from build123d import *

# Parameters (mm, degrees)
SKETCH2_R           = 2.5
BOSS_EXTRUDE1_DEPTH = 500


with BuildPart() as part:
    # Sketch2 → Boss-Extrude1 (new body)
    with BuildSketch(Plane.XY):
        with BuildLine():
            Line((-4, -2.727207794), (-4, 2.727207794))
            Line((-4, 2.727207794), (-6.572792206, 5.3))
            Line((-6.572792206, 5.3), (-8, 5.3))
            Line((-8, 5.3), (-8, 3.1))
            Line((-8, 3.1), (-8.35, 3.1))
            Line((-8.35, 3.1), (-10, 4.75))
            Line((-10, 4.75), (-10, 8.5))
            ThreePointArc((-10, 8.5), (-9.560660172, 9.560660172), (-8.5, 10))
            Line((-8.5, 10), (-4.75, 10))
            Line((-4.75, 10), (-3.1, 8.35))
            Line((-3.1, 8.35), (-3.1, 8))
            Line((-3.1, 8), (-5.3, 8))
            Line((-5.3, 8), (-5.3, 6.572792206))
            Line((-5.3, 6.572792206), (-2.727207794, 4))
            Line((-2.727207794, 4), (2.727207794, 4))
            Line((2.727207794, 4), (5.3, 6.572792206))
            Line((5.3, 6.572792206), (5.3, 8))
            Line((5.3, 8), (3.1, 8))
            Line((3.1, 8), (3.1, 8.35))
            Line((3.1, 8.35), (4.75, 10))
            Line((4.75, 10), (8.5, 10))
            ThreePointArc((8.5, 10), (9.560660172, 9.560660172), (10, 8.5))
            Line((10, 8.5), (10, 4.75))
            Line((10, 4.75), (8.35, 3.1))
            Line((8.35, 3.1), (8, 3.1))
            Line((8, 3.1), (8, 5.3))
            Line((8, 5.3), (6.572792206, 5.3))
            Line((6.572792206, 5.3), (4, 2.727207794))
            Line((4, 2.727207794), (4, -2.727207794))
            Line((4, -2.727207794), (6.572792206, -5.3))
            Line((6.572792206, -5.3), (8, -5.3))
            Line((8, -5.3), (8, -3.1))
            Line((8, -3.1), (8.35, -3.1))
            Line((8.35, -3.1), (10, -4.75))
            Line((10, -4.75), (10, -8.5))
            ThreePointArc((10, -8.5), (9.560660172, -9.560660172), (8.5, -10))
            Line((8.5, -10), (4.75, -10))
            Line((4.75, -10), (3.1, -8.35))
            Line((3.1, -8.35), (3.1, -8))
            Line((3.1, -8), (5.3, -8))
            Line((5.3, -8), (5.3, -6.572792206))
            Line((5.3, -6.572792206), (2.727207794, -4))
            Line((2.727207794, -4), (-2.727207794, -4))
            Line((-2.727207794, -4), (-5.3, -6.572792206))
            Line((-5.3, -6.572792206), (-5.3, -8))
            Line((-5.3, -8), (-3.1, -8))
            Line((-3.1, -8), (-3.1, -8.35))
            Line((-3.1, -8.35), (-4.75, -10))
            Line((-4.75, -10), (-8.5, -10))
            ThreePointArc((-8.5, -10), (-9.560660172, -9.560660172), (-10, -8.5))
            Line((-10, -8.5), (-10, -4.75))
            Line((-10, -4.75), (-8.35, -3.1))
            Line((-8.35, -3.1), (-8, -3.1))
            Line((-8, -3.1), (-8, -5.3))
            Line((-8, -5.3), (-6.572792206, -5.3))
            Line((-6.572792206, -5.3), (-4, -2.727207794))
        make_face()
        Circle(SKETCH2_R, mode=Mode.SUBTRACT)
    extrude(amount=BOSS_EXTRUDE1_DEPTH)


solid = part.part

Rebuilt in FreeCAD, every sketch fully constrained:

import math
import FreeCAD as App
import Part
import Sketcher

doc = App.newDocument("Part")
body = doc.addObject("PartDesign::Body", "Body")

sketch1 = doc.addObject("Sketcher::SketchObject", "Sketch")
body.addObject(sketch1)
sketch1.AttachmentSupport = (doc.XY_Plane, [""])
sketch1.MapMode = "FlatFace"
sketch1.addGeometry(Part.LineSegment(App.Vector(-4, 2.73, 0), App.Vector(-4, -2.73, 0)), False)
sketch1.addGeometry(Part.LineSegment(App.Vector(-4, -2.73, 0), App.Vector(-6.57, -5.3, 0)), False)
sketch1.addGeometry(Part.LineSegment(App.Vector(-6.57, -5.3, 0), App.Vector(-8, -5.3, 0)), False)
sketch1.addGeometry(Part.LineSegment(App.Vector(-8, -5.3, 0), App.Vector(-8, -3.1, 0)), False)
sketch1.addGeometry(Part.LineSegment(App.Vector(-8, -3.1, 0), App.Vector(-8.35, -3.1, 0)), False)
sketch1.addGeometry(Part.LineSegment(App.Vector(-8.35, -3.1, 0), App.Vector(-10, -4.75, 0)), False)
sketch1.addGeometry(Part.LineSegment(App.Vector(-10, -4.75, 0), App.Vector(-10, -8.5, 0)), False)
sketch1.addGeometry(Part.ArcOfCircle(Part.Circle(App.Vector(-8.5, -8.5, 0), App.Vector(0, 0, 1), 1.5), math.radians(180), math.radians(270)), False)
sketch1.addGeometry(Part.LineSegment(App.Vector(-8.5, -10, 0), App.Vector(-4.75, -10, 0)), False)
sketch1.addGeometry(Part.LineSegment(App.Vector(-4.75, -10, 0), App.Vector(-3.1, -8.35, 0)), False)
sketch1.addGeometry(Part.LineSegment(App.Vector(-3.1, -8.35, 0), App.Vector(-3.1, -8, 0)), False)
sketch1.addGeometry(Part.LineSegment(App.Vector(-3.1, -8, 0), App.Vector(-5.3, -8, 0)), False)
sketch1.addGeometry(Part.LineSegment(App.Vector(-5.3, -8, 0), App.Vector(-5.3, -6.57, 0)), False)
sketch1.addGeometry(Part.LineSegment(App.Vector(-5.3, -6.57, 0), App.Vector(-2.73, -4, 0)), False)
sketch1.addGeometry(Part.LineSegment(App.Vector(-2.73, -4, 0), App.Vector(2.73, -4, 0)), False)
sketch1.addGeometry(Part.LineSegment(App.Vector(2.73, -4, 0), App.Vector(5.3, -6.57, 0)), False)
sketch1.addGeometry(Part.LineSegment(App.Vector(5.3, -6.57, 0), App.Vector(5.3, -8, 0)), False)
sketch1.addGeometry(Part.LineSegment(App.Vector(5.3, -8, 0), App.Vector(3.1, -8, 0)), False)
sketch1.addGeometry(Part.LineSegment(App.Vector(3.1, -8, 0), App.Vector(3.1, -8.35, 0)), False)
sketch1.addGeometry(Part.LineSegment(App.Vector(3.1, -8.35, 0), App.Vector(4.75, -10, 0)), False)
sketch1.addGeometry(Part.LineSegment(App.Vector(4.75, -10, 0), App.Vector(8.5, -10, 0)), False)
sketch1.addGeometry(Part.ArcOfCircle(Part.Circle(App.Vector(8.5, -8.5, 0), App.Vector(0, 0, 1), 1.5), math.radians(-90), math.radians(0)), False)
sketch1.addGeometry(Part.LineSegment(App.Vector(10, -8.5, 0), App.Vector(10, -4.75, 0)), False)
sketch1.addGeometry(Part.LineSegment(App.Vector(10, -4.75, 0), App.Vector(8.35, -3.1, 0)), False)
sketch1.addGeometry(Part.LineSegment(App.Vector(8.35, -3.1, 0), App.Vector(8, -3.1, 0)), False)
sketch1.addGeometry(Part.LineSegment(App.Vector(8, -3.1, 0), App.Vector(8, -5.3, 0)), False)
sketch1.addGeometry(Part.LineSegment(App.Vector(8, -5.3, 0), App.Vector(6.57, -5.3, 0)), False)
sketch1.addGeometry(Part.LineSegment(App.Vector(6.57, -5.3, 0), App.Vector(4, -2.73, 0)), False)
sketch1.addGeometry(Part.LineSegment(App.Vector(4, -2.73, 0), App.Vector(4, 2.73, 0)), False)
sketch1.addGeometry(Part.LineSegment(App.Vector(4, 2.73, 0), App.Vector(6.57, 5.3, 0)), False)
sketch1.addGeometry(Part.LineSegment(App.Vector(6.57, 5.3, 0), App.Vector(8, 5.3, 0)), False)
sketch1.addGeometry(Part.LineSegment(App.Vector(8, 5.3, 0), App.Vector(8, 3.1, 0)), False)
sketch1.addGeometry(Part.LineSegment(App.Vector(8, 3.1, 0), App.Vector(8.35, 3.1, 0)), False)
sketch1.addGeometry(Part.LineSegment(App.Vector(8.35, 3.1, 0), App.Vector(10, 4.75, 0)), False)
sketch1.addGeometry(Part.LineSegment(App.Vector(10, 4.75, 0), App.Vector(10, 8.5, 0)), False)
sketch1.addGeometry(Part.ArcOfCircle(Part.Circle(App.Vector(8.5, 8.5, 0), App.Vector(0, 0, 1), 1.5), math.radians(0), math.radians(90)), False)
sketch1.addGeometry(Part.LineSegment(App.Vector(8.5, 10, 0), App.Vector(4.75, 10, 0)), False)
sketch1.addGeometry(Part.LineSegment(App.Vector(4.75, 10, 0), App.Vector(3.1, 8.35, 0)), False)
sketch1.addGeometry(Part.LineSegment(App.Vector(3.1, 8.35, 0), App.Vector(3.1, 8, 0)), False)
sketch1.addGeometry(Part.LineSegment(App.Vector(3.1, 8, 0), App.Vector(5.3, 8, 0)), False)
sketch1.addGeometry(Part.LineSegment(App.Vector(5.3, 8, 0), App.Vector(5.3, 6.57, 0)), False)
sketch1.addGeometry(Part.LineSegment(App.Vector(5.3, 6.57, 0), App.Vector(2.73, 4, 0)), False)
sketch1.addGeometry(Part.LineSegment(App.Vector(2.73, 4, 0), App.Vector(-2.73, 4, 0)), False)
sketch1.addGeometry(Part.LineSegment(App.Vector(-2.73, 4, 0), App.Vector(-5.3, 6.57, 0)), False)
sketch1.addGeometry(Part.LineSegment(App.Vector(-5.3, 6.57, 0), App.Vector(-5.3, 8, 0)), False)
sketch1.addGeometry(Part.LineSegment(App.Vector(-5.3, 8, 0), App.Vector(-3.1, 8, 0)), False)
sketch1.addGeometry(Part.LineSegment(App.Vector(-3.1, 8, 0), App.Vector(-3.1, 8.35, 0)), False)
sketch1.addGeometry(Part.LineSegment(App.Vector(-3.1, 8.35, 0), App.Vector(-4.75, 10, 0)), False)
sketch1.addGeometry(Part.LineSegment(App.Vector(-4.75, 10, 0), App.Vector(-8.5, 10, 0)), False)
sketch1.addGeometry(Part.ArcOfCircle(Part.Circle(App.Vector(-8.5, 8.5, 0), App.Vector(0, 0, 1), 1.5), math.radians(90), math.radians(180)), False)
sketch1.addGeometry(Part.LineSegment(App.Vector(-10, 8.5, 0), App.Vector(-10, 4.75, 0)), False)
sketch1.addGeometry(Part.LineSegment(App.Vector(-10, 4.75, 0), App.Vector(-8.35, 3.1, 0)), False)
sketch1.addGeometry(Part.LineSegment(App.Vector(-8.35, 3.1, 0), App.Vector(-8, 3.1, 0)), False)
sketch1.addGeometry(Part.LineSegment(App.Vector(-8, 3.1, 0), App.Vector(-8, 5.3, 0)), False)
sketch1.addGeometry(Part.LineSegment(App.Vector(-8, 5.3, 0), App.Vector(-6.57, 5.3, 0)), False)
sketch1.addGeometry(Part.LineSegment(App.Vector(-6.57, 5.3, 0), App.Vector(-4, 2.73, 0)), False)
sketch1.addGeometry(Part.Circle(App.Vector(0, 0, 0), App.Vector(0, 0, 1), 2.5), False)
sketch1.addConstraint(Sketcher.Constraint("Coincident", 0, 2, 1, 1))
sketch1.addConstraint(Sketcher.Constraint("Coincident", 1, 2, 2, 1))
sketch1.addConstraint(Sketcher.Constraint("Coincident", 2, 2, 3, 1))
sketch1.addConstraint(Sketcher.Constraint("Coincident", 3, 2, 4, 1))
sketch1.addConstraint(Sketcher.Constraint("Coincident", 4, 2, 5, 1))
sketch1.addConstraint(Sketcher.Constraint("Coincident", 5, 2, 6, 1))
sketch1.addConstraint(Sketcher.Constraint("Tangent", 6, 2, 7, 1))
sketch1.addConstraint(Sketcher.Constraint("Tangent", 7, 2, 8, 1))
sketch1.addConstraint(Sketcher.Constraint("Coincident", 8, 2, 9, 1))
sketch1.addConstraint(Sketcher.Constraint("Coincident", 9, 2, 10, 1))
sketch1.addConstraint(Sketcher.Constraint("Coincident", 10, 2, 11, 1))
sketch1.addConstraint(Sketcher.Constraint("Coincident", 11, 2, 12, 1))
sketch1.addConstraint(Sketcher.Constraint("Coincident", 12, 2, 13, 1))
sketch1.addConstraint(Sketcher.Constraint("Coincident", 13, 2, 14, 1))
sketch1.addConstraint(Sketcher.Constraint("Coincident", 14, 2, 15, 1))
sketch1.addConstraint(Sketcher.Constraint("Coincident", 15, 2, 16, 1))
sketch1.addConstraint(Sketcher.Constraint("Coincident", 16, 2, 17, 1))
sketch1.addConstraint(Sketcher.Constraint("Coincident", 17, 2, 18, 1))
sketch1.addConstraint(Sketcher.Constraint("Coincident", 18, 2, 19, 1))
sketch1.addConstraint(Sketcher.Constraint("Coincident", 19, 2, 20, 1))
sketch1.addConstraint(Sketcher.Constraint("Tangent", 20, 2, 21, 1))
sketch1.addConstraint(Sketcher.Constraint("Tangent", 21, 2, 22, 1))
sketch1.addConstraint(Sketcher.Constraint("Coincident", 22, 2, 23, 1))
sketch1.addConstraint(Sketcher.Constraint("Coincident", 23, 2, 24, 1))
sketch1.addConstraint(Sketcher.Constraint("Coincident", 24, 2, 25, 1))
sketch1.addConstraint(Sketcher.Constraint("Coincident", 25, 2, 26, 1))
sketch1.addConstraint(Sketcher.Constraint("Coincident", 26, 2, 27, 1))
sketch1.addConstraint(Sketcher.Constraint("Coincident", 27, 2, 28, 1))
sketch1.addConstraint(Sketcher.Constraint("Coincident", 28, 2, 29, 1))
sketch1.addConstraint(Sketcher.Constraint("Coincident", 29, 2, 30, 1))
sketch1.addConstraint(Sketcher.Constraint("Coincident", 30, 2, 31, 1))
sketch1.addConstraint(Sketcher.Constraint("Coincident", 31, 2, 32, 1))
sketch1.addConstraint(Sketcher.Constraint("Coincident", 32, 2, 33, 1))
sketch1.addConstraint(Sketcher.Constraint("Coincident", 33, 2, 34, 1))
sketch1.addConstraint(Sketcher.Constraint("Tangent", 34, 2, 35, 1))
sketch1.addConstraint(Sketcher.Constraint("Tangent", 35, 2, 36, 1))
sketch1.addConstraint(Sketcher.Constraint("Coincident", 36, 2, 37, 1))
sketch1.addConstraint(Sketcher.Constraint("Coincident", 37, 2, 38, 1))
sketch1.addConstraint(Sketcher.Constraint("Coincident", 38, 2, 39, 1))
sketch1.addConstraint(Sketcher.Constraint("Coincident", 39, 2, 40, 1))
sketch1.addConstraint(Sketcher.Constraint("Coincident", 40, 2, 41, 1))
sketch1.addConstraint(Sketcher.Constraint("Coincident", 41, 2, 42, 1))
sketch1.addConstraint(Sketcher.Constraint("Coincident", 42, 2, 43, 1))
sketch1.addConstraint(Sketcher.Constraint("Coincident", 43, 2, 44, 1))
sketch1.addConstraint(Sketcher.Constraint("Coincident", 44, 2, 45, 1))
sketch1.addConstraint(Sketcher.Constraint("Coincident", 45, 2, 46, 1))
sketch1.addConstraint(Sketcher.Constraint("Coincident", 46, 2, 47, 1))
sketch1.addConstraint(Sketcher.Constraint("Coincident", 47, 2, 48, 1))
sketch1.addConstraint(Sketcher.Constraint("Tangent", 48, 2, 49, 1))
sketch1.addConstraint(Sketcher.Constraint("Tangent", 49, 2, 50, 1))
sketch1.addConstraint(Sketcher.Constraint("Coincident", 50, 2, 51, 1))
sketch1.addConstraint(Sketcher.Constraint("Coincident", 51, 2, 52, 1))
sketch1.addConstraint(Sketcher.Constraint("Coincident", 52, 2, 53, 1))
sketch1.addConstraint(Sketcher.Constraint("Coincident", 53, 2, 54, 1))
sketch1.addConstraint(Sketcher.Constraint("Coincident", 54, 2, 55, 1))
sketch1.addConstraint(Sketcher.Constraint("Coincident", 55, 2, 0, 1))
sketch1.addConstraint(Sketcher.Constraint("Vertical", 0))
sketch1.addConstraint(Sketcher.Constraint("Horizontal", 2))
sketch1.addConstraint(Sketcher.Constraint("Vertical", 3))
sketch1.addConstraint(Sketcher.Constraint("Horizontal", 4))
sketch1.addConstraint(Sketcher.Constraint("Vertical", 6))
sketch1.addConstraint(Sketcher.Constraint("Horizontal", 8))
sketch1.addConstraint(Sketcher.Constraint("Vertical", 10))
sketch1.addConstraint(Sketcher.Constraint("Horizontal", 11))
sketch1.addConstraint(Sketcher.Constraint("Vertical", 12))
sketch1.addConstraint(Sketcher.Constraint("Horizontal", 14))
sketch1.addConstraint(Sketcher.Constraint("Vertical", 16))
sketch1.addConstraint(Sketcher.Constraint("Horizontal", 17))
sketch1.addConstraint(Sketcher.Constraint("Vertical", 18))
sketch1.addConstraint(Sketcher.Constraint("Horizontal", 20))
sketch1.addConstraint(Sketcher.Constraint("Vertical", 22))
sketch1.addConstraint(Sketcher.Constraint("Horizontal", 24))
sketch1.addConstraint(Sketcher.Constraint("Vertical", 25))
sketch1.addConstraint(Sketcher.Constraint("Horizontal", 26))
sketch1.addConstraint(Sketcher.Constraint("Vertical", 28))
sketch1.addConstraint(Sketcher.Constraint("Horizontal", 30))
sketch1.addConstraint(Sketcher.Constraint("Vertical", 31))
sketch1.addConstraint(Sketcher.Constraint("Horizontal", 32))
sketch1.addConstraint(Sketcher.Constraint("Vertical", 34))
sketch1.addConstraint(Sketcher.Constraint("Horizontal", 36))
sketch1.addConstraint(Sketcher.Constraint("Vertical", 38))
sketch1.addConstraint(Sketcher.Constraint("Horizontal", 39))
sketch1.addConstraint(Sketcher.Constraint("Vertical", 40))
sketch1.addConstraint(Sketcher.Constraint("Horizontal", 42))
sketch1.addConstraint(Sketcher.Constraint("Vertical", 44))
sketch1.addConstraint(Sketcher.Constraint("Horizontal", 45))
sketch1.addConstraint(Sketcher.Constraint("Vertical", 46))
sketch1.addConstraint(Sketcher.Constraint("Horizontal", 48))
sketch1.addConstraint(Sketcher.Constraint("Vertical", 50))
sketch1.addConstraint(Sketcher.Constraint("Horizontal", 52))
sketch1.addConstraint(Sketcher.Constraint("Vertical", 53))
sketch1.addConstraint(Sketcher.Constraint("Horizontal", 54))
sketch1.addConstraint(Sketcher.Constraint("Coincident", 56, 3, -1, 1))
sketch1.addConstraint(Sketcher.Constraint("Equal", 7, 21))
sketch1.addConstraint(Sketcher.Constraint("Equal", 21, 35))
sketch1.addConstraint(Sketcher.Constraint("Equal", 35, 49))
sketch1.addConstraint(Sketcher.Constraint("Symmetric", 7, 3, 35, 3, -1, 1))
sketch1.addConstraint(Sketcher.Constraint("Symmetric", 21, 3, 49, 3, -1, 1))
sketch1.addConstraint(Sketcher.Constraint("Symmetric", 0, 2, 28, 2, -1, 1))
sketch1.addConstraint(Sketcher.Constraint("Symmetric", 1, 2, 29, 2, -1, 1))
sketch1.addConstraint(Sketcher.Constraint("Symmetric", 3, 2, 31, 2, -1, 1))
sketch1.addConstraint(Sketcher.Constraint("Symmetric", 9, 2, 37, 2, -1, 1))
sketch1.addConstraint(Sketcher.Constraint("Symmetric", 11, 2, 39, 2, -1, 1))
sketch1.addConstraint(Sketcher.Constraint("Symmetric", 13, 2, 41, 2, -1, 1))
sketch1.addConstraint(Sketcher.Constraint("Symmetric", 15, 2, 43, 2, -1, 1))
sketch1.addConstraint(Sketcher.Constraint("Symmetric", 17, 2, 45, 2, -1, 1))
sketch1.addConstraint(Sketcher.Constraint("Symmetric", 23, 2, 51, 2, -1, 1))
sketch1.addConstraint(Sketcher.Constraint("Symmetric", 25, 2, 53, 2, -1, 1))
sketch1.addConstraint(Sketcher.Constraint("Symmetric", 7, 3, 21, 3, -2))
sketch1.addConstraint(Sketcher.Constraint("Symmetric", 12, 2, 15, 2, -2))
sketch1.addConstraint(Sketcher.Constraint("Symmetric", 10, 2, 17, 2, -2))
sketch1.addConstraint(Sketcher.Constraint("Symmetric", 4, 2, 23, 2, -2))
sketch1.addConstraint(Sketcher.Constraint("Symmetric", 2, 2, 25, 2, -2))
sketch1.addConstraint(Sketcher.Constraint("Parallel", 1, 5))
sketch1.addConstraint(Sketcher.Constraint("Parallel", 5, 9))
sketch1.addConstraint(Sketcher.Constraint("Parallel", 9, 13))
sketch1.addConstraint(Sketcher.Constraint("Perpendicular", 13, 15))
sketch1.addConstraint(Sketcher.Constraint("Parallel", 15, 19))
sketch1.addConstraint(Sketcher.Constraint("Parallel", 19, 23))
sketch1.addConstraint(Sketcher.Constraint("Parallel", 23, 27))
sketch1.addConstraint(Sketcher.Constraint("Parallel", 29, 33))
sketch1.addConstraint(Sketcher.Constraint("Parallel", 33, 37))
sketch1.addConstraint(Sketcher.Constraint("Parallel", 37, 41))
sketch1.addConstraint(Sketcher.Constraint("Perpendicular", 41, 43))
sketch1.addConstraint(Sketcher.Constraint("Parallel", 43, 47))
sketch1.addConstraint(Sketcher.Constraint("Parallel", 47, 51))
sketch1.addConstraint(Sketcher.Constraint("Parallel", 51, 55))
sketch1.addConstraint(Sketcher.Constraint("Horizontal", 9, 2, 18, 2))
sketch1.addConstraint(Sketcher.Constraint("Horizontal", 5, 2, 22, 2))
sketch1.addConstraint(Sketcher.Constraint("Horizontal", 0, 2, 27, 2))
sketch1.addConstraint(Sketcher.Constraint("Horizontal", 37, 2, 46, 2))
sketch1.addConstraint(Sketcher.Constraint("Horizontal", 33, 2, 50, 2))
sketch1.addConstraint(Sketcher.Constraint("Horizontal", 28, 2, 55, 2))
sketch1.addConstraint(Sketcher.Constraint("Equal", 42, 0))
sketch1.addConstraint(Sketcher.Constraint("Equal", 45, 3))
sketch1.addConstraint(Sketcher.Constraint("Equal", 48, 6))
sketch1.addConstraint(Sketcher.Constraint("Equal", 52, 10))
sketch1.addConstraint(Sketcher.Constraint("Equal", 54, 12))
sketch1.addConstraint(Sketcher.Constraint("Equal", 5, 9))
sketch1.addConstraint(Sketcher.Constraint("Equal", 1, 13))
sketch1.addConstraint(Sketcher.Constraint("Diameter", 56, 5.0))
sketch1.addConstraint(Sketcher.Constraint("Radius", 7, 1.5))
sketch1.addConstraint(Sketcher.Constraint("DistanceX", 11, 2, 11, 1, 2.2))
sketch1.addConstraint(Sketcher.Constraint("DistanceX", 0, 2, -1, 1, 4.0))
sketch1.addConstraint(Sketcher.Constraint("DistanceX", 2, 2, -1, 1, 8.0))
sketch1.addConstraint(Sketcher.Constraint("DistanceX", 5, 2, -1, 1, 10.0))
sketch1.addConstraint(Sketcher.Constraint("DistanceX", 4, 2, 4, 1, 0.35))
sketch1.addConstraint(Sketcher.Constraint("DistanceX", 8, 1, 8, 2, 3.75))
sketch1.addConstraint(Sketcher.Constraint("DistanceX", 2, 2, 2, 1, 1.427208))
pad1 = doc.addObject("PartDesign::Pad", "Pad")
body.addObject(pad1)
pad1.Profile = sketch1
pad1.Length = 500

doc.recompute()
